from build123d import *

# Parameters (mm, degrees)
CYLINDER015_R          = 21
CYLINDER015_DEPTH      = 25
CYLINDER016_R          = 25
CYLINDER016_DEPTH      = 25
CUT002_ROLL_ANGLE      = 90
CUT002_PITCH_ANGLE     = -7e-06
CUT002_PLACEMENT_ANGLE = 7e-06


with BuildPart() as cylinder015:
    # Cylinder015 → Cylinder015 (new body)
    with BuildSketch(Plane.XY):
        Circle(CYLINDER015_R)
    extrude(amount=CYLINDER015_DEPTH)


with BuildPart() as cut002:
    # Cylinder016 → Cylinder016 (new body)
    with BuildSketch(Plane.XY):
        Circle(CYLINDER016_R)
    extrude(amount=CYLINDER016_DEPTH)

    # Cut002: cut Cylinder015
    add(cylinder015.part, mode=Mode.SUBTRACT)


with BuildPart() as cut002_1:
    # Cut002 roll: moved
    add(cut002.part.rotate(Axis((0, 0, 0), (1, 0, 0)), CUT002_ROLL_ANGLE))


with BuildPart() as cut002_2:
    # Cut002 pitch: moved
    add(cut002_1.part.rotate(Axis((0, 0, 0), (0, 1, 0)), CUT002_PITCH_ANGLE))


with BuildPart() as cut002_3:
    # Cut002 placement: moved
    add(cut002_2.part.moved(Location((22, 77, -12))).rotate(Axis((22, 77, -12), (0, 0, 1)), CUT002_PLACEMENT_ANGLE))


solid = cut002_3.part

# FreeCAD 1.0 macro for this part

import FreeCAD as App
import Part
import Sketcher
Q = App.Units.Quantity

doc = App.newDocument("Part")
body = doc.addObject("PartDesign::Body", "Body")

# Sketch on XY plane
sketch1 = body.newObject("Sketcher::SketchObject", "Sketch")
sketch1.AttachmentSupport = (doc.getObject("XY_Plane"), [""])
sketch1.MapMode = "FlatFace"
sketch1.addGeometry(Part.Circle(App.Vector(0, 0, 0), App.Vector(0, 0, 1), 21), False)
sketch1.addConstraint([
    Sketcher.Constraint("Coincident", 0, 3, -1, 1),
    Sketcher.Constraint("Diameter", 0, Q("42 mm")),
])
pad1 = body.newObject("PartDesign::Pad", "Pad")
pad1.Profile = sketch1
pad1.Length = 25
body2 = doc.addObject("PartDesign::Body", "Body001")

# Sketch on XY plane
sketch2 = body2.newObject("Sketcher::SketchObject", "Sketch001")
sketch2.AttachmentSupport = (doc.getObject("XY_Plane001"), [""])
sketch2.MapMode = "FlatFace"
sketch2.addGeometry(Part.Circle(App.Vector(0, 0, 0), App.Vector(0, 0, 1), 25), False)
sketch2.addConstraint([
    Sketcher.Constraint("Coincident", 0, 3, -1, 1),
    Sketcher.Constraint("Diameter", 0, Q("50 mm")),
])
pad2 = body2.newObject("PartDesign::Pad", "Pad001")
pad2.Profile = sketch2
pad2.Length = 25
doc.recompute()

boolean = body2.newObject("PartDesign::Boolean", "Boolean")
boolean.Type = "Cut"
boolean.addObjects([body])
body3 = doc.addObject("PartDesign::Body", "Body002")
doc.recompute()

body2.Placement = App.Placement(App.Vector(0, 0, 0), App.Rotation(App.Vector(1, 0, 0), 90))
boolean2 = body3.newObject("PartDesign::Boolean", "Boolean001")
boolean2.Type = "Fuse"
boolean2.addObjects([body2])
body4 = doc.addObject("PartDesign::Body", "Body003")
doc.recompute()

body3.Placement = App.Placement(App.Vector(0, 0, 0), App.Rotation(App.Vector(0, 1, 0), 359.999993))
boolean3 = body4.newObject("PartDesign::Boolean", "Boolean002")
boolean3.Type = "Fuse"
boolean3.addObjects([body3])
body5 = doc.addObject("PartDesign::Body", "Body004")
doc.recompute()

body4.Placement = App.Placement(App.Vector(22, 77, -12), App.Rotation(App.Vector(0, 0, 1), 0.000007))
boolean4 = body5.newObject("PartDesign::Boolean", "Boolean003")
boolean4.Type = "Fuse"
boolean4.addObjects([body4])

doc.recompute()
